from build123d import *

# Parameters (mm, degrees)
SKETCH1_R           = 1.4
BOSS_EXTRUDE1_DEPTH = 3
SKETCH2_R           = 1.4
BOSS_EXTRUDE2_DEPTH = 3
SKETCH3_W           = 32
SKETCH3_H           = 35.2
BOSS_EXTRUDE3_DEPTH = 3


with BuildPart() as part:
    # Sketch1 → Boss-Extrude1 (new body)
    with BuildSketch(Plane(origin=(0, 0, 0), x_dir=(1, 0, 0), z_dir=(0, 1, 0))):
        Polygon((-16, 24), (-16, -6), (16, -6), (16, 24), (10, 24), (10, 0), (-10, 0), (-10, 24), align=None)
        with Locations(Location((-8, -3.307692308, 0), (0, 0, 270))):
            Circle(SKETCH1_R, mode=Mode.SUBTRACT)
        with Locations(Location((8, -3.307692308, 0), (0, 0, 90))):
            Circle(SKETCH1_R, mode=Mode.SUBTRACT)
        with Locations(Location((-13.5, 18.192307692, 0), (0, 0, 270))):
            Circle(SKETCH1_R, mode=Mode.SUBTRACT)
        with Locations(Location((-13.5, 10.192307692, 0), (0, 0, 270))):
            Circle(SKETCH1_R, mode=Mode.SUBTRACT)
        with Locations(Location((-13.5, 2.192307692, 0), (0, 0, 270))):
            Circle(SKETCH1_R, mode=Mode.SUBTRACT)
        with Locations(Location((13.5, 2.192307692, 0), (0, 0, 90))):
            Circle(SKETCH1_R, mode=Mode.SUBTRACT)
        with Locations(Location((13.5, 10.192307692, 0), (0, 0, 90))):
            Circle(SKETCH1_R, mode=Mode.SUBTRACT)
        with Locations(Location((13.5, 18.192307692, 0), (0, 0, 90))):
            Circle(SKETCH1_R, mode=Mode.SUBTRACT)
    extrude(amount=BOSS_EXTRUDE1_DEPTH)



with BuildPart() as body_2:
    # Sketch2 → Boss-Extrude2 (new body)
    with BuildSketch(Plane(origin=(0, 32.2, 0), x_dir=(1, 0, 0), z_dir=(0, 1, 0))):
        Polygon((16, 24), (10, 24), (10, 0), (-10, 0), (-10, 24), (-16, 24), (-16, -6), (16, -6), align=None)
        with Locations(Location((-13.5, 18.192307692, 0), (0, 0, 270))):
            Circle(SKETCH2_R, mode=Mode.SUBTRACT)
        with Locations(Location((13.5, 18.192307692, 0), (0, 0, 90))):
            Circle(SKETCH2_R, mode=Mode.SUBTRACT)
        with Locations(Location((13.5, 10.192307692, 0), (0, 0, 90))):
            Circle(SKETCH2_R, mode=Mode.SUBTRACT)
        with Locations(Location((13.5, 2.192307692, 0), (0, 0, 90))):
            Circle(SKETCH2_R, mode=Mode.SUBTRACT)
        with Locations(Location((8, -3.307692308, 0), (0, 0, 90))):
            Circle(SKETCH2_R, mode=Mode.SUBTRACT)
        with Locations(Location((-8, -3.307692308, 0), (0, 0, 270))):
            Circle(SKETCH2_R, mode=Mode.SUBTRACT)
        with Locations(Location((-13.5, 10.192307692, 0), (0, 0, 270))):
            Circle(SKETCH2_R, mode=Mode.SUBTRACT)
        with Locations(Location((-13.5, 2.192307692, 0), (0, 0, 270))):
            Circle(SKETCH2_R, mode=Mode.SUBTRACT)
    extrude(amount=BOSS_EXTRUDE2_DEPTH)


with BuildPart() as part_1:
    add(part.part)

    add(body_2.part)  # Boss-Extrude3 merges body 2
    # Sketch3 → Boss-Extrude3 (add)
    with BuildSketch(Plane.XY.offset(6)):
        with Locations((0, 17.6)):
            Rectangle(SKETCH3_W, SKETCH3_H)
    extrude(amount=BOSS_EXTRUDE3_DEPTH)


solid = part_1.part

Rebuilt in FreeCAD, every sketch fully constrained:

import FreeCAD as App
import Part
import Sketcher
from FreeCAD import Vector

doc = App.newDocument("Part")
params = doc.addObject("Spreadsheet::Sheet", "Params")
for row, (alias, value) in enumerate([
    ("sketch1_diameter", "2.8 mm"),
    ("sketch1_width", "32 mm"),
    ("sketch1_width2", "6 mm"),
    ("sketch1_height", "30 mm"),
    ("sketch1_height2", "24 mm"),
    ("pad1_length", "3 mm"),
    ("sketch2_diameter", "2.8 mm"),
    ("sketch2_width", "6 mm"),
    ("sketch2_width2", "20 mm"),
    ("sketch2_height", "24 mm"),
    ("sketch2_height2", "30 mm"),
    ("pad2_length", "3 mm"),
    ("sketch3_width", "32 mm"),
    ("sketch3_height", "35.2 mm"),
    ("pad3_length", "3 mm"),
], start=1):
    params.set(f"A{row}", alias)
    params.set(f"B{row}", "=" + value)
    params.setAlias(f"B{row}", alias)

body = doc.addObject("PartDesign::Body", "Body")

# Sketch on XZ plane
sketch1 = body.newObject("Sketcher::SketchObject", "Sketch")
sketch1.AttachmentSupport = (doc.getObject("XZ_Plane"), [""])
sketch1.MapMode = "FlatFace"
sketch1.addGeometry(Part.LineSegment(Vector(-16, -24, 0), Vector(-16, 6, 0)), False)
sketch1.addGeometry(Part.LineSegment(Vector(-16, 6, 0), Vector(16, 6, 0)), False)
sketch1.addGeometry(Part.LineSegment(Vector(16, 6, 0), Vector(16, -24, 0)), False)
sketch1.addGeometry(Part.LineSegment(Vector(16, -24, 0), Vector(10, -24, 0)), False)
sketch1.addGeometry(Part.LineSegment(Vector(10, -24, 0), Vector(10, 0, 0)), False)
sketch1.addGeometry(Part.LineSegment(Vector(10, 0, 0), Vector(-10, 0, 0)), False)
sketch1.addGeometry(Part.LineSegment(Vector(-10, 0, 0), Vector(-10, -24, 0)), False)
sketch1.addGeometry(Part.LineSegment(Vector(-10, -24, 0), Vector(-16, -24, 0)), False)
sketch1.addGeometry(Part.Circle(Vector(-8, 3.307692, 0), Vector(0, 0, 1), 1.4), False)
sketch1.addGeometry(Part.Circle(Vector(-13.5, -2.192308, 0), Vector(0, 0, 1), 1.4), False)
sketch1.addGeometry(Part.Circle(Vector(8, 3.307692, 0), Vector(0, 0, 1), 1.4), False)
sketch1.addGeometry(Part.Circle(Vector(13.5, -2.192308, 0), Vector(0, 0, 1), 1.4), False)
sketch1.addGeometry(Part.Circle(Vector(-13.5, -10.192308, 0), Vector(0, 0, 1), 1.4), False)
sketch1.addGeometry(Part.Circle(Vector(-13.5, -18.192308, 0), Vector(0, 0, 1), 1.4), False)
sketch1.addGeometry(Part.Circle(Vector(13.5, -10.192308, 0), Vector(0, 0, 1), 1.4), False)
sketch1.addGeometry(Part.Circle(Vector(13.5, -18.192308, 0), Vector(0, 0, 1), 1.4), False)
sketch1.addConstraint(Sketcher.Constraint("Coincident", 0, 2, 1, 1))
sketch1.addConstraint(Sketcher.Constraint("Coincident", 1, 2, 2, 1))
sketch1.addConstraint(Sketcher.Constraint("Coincident", 2, 2, 3, 1))
sketch1.addConstraint(Sketcher.Constraint("Coincident", 3, 2, 4, 1))
sketch1.addConstraint(Sketcher.Constraint("Coincident", 4, 2, 5, 1))
sketch1.addConstraint(Sketcher.Constraint("Coincident", 5, 2, 6, 1))
sketch1.addConstraint(Sketcher.Constraint("Coincident", 6, 2, 7, 1))
sketch1.addConstraint(Sketcher.Constraint("Coincident", 7, 2, 0, 1))
sketch1.addConstraint(Sketcher.Constraint("Vertical", 0))
sketch1.addConstraint(Sketcher.Constraint("Horizontal", 1))
sketch1.addConstraint(Sketcher.Constraint("Vertical", 2))
sketch1.addConstraint(Sketcher.Constraint("Horizontal", 3))
sketch1.addConstraint(Sketcher.Constraint("Vertical", 4))
sketch1.addConstraint(Sketcher.Constraint("Horizontal", 5))
sketch1.addConstraint(Sketcher.Constraint("Vertical", 6))
sketch1.addConstraint(Sketcher.Constraint("Horizontal", 7))
sketch1.addConstraint(Sketcher.Constraint("Equal", 8, 9))
sketch1.addConstraint(Sketcher.Constraint("Equal", 9, 10))
sketch1.addConstraint(Sketcher.Constraint("Equal", 10, 11))
sketch1.addConstraint(Sketcher.Constraint("Equal", 11, 12))
sketch1.addConstraint(Sketcher.Constraint("Equal", 12, 13))
sketch1.addConstraint(Sketcher.Constraint("Equal", 13, 14))
sketch1.addConstraint(Sketcher.Constraint("Equal", 14, 15))
sketch1.addConstraint(Sketcher.Constraint("Symmetric", 4, 2, 5, 2, -1, 1))
sketch1.addConstraint(Sketcher.Constraint("Symmetric", 8, 3, 10, 3, -2))
sketch1.addConstraint(Sketcher.Constraint("Symmetric", 9, 3, 11, 3, -2))
sketch1.addConstraint(Sketcher.Constraint("Symmetric", 12, 3, 14, 3, -2))
sketch1.addConstraint(Sketcher.Constraint("Symmetric", 13, 3, 15, 3, -2))
sketch1.addConstraint(Sketcher.Constraint("Symmetric", 2, 2, 7, 2, -2))
sketch1.addConstraint(Sketcher.Constraint("Vertical", 9, 3, 12, 3))
sketch1.addConstraint(Sketcher.Constraint("Vertical", 12, 3, 13, 3))
sketch1.addConstraint(Sketcher.Constraint("Diameter", 8, 2.8))
sketch1.addConstraint(Sketcher.Constraint("DistanceX", 1, 1, 1, 2, 32.0))
sketch1.addConstraint(Sketcher.Constraint("DistanceX", 3, 2, 3, 1, 6.0))
sketch1.addConstraint(Sketcher.Constraint("DistanceY", 0, 1, 0, 2, 30.0))
sketch1.addConstraint(Sketcher.Constraint("DistanceY", 4, 1, 4, 2, 24.0))
sketch1.addConstraint(Sketcher.Constraint("DistanceX", 8, 3, -1, 1, 8.0))
sketch1.addConstraint(Sketcher.Constraint("DistanceX", 9, 3, 11, 3, 27.0))
sketch1.addConstraint(Sketcher.Constraint("DistanceY", 12, 3, 9, 3, 8.0))
sketch1.addConstraint(Sketcher.Constraint("DistanceY", 13, 3, 12, 3, 8.0))
sketch1.addConstraint(Sketcher.Constraint("DistanceY", 9, 3, 8, 3, 5.5))
sketch1.addConstraint(Sketcher.Constraint("DistanceY", -1, 1, 8, 3, 3.307692))
sketch1.setExpression("Constraints[31]", "Params.sketch1_diameter")
sketch1.setExpression("Constraints[32]", "Params.sketch1_width")
sketch1.setExpression("Constraints[33]", "Params.sketch1_width2")
sketch1.setExpression("Constraints[34]", "Params.sketch1_height")
sketch1.setExpression("Constraints[35]", "Params.sketch1_height2")
pad1 = body.newObject("PartDesign::Pad", "Pad")
pad1.Profile = sketch1
pad1.setExpression("Length", "Params.pad1_length")
pad1.Reversed = True
body2 = doc.addObject("PartDesign::Body", "Body001")

# Sketch on XZ plane
sketch2 = body2.newObject("Sketcher::SketchObject", "Sketch001")
sketch2.AttachmentSupport = (doc.getObject("XZ_Plane001"), [""])
sketch2.MapMode = "FlatFace"
sketch2.AttachmentOffset = App.Placement(Vector(0, 0, -32.2), App.Rotation())
sketch2.addGeometry(Part.LineSegment(Vector(16, -24, 0), Vector(10, -24, 0)), False)
sketch2.addGeometry(Part.LineSegment(Vector(10, -24, 0), Vector(10, 0, 0)), False)
sketch2.addGeometry(Part.LineSegment(Vector(10, 0, 0), Vector(-10, 0, 0)), False)
sketch2.addGeometry(Part.LineSegment(Vector(-10, 0, 0), Vector(-10, -24, 0)), False)
sketch2.addGeometry(Part.LineSegment(Vector(-10, -24, 0), Vector(-16, -24, 0)), False)
sketch2.addGeometry(Part.LineSegment(Vector(-16, -24, 0), Vector(-16, 6, 0)), False)
sketch2.addGeometry(Part.LineSegment(Vector(-16, 6, 0), Vector(16, 6, 0)), False)
sketch2.addGeometry(Part.LineSegment(Vector(16, 6, 0), Vector(16, -24, 0)), False)
sketch2.addGeometry(Part.Circle(Vector(-8, 3.307692, 0), Vector(0, 0, 1), 1.4), False)
sketch2.addGeometry(Part.Circle(Vector(-13.5, -2.192308, 0), Vector(0, 0, 1), 1.4), False)
sketch2.addGeometry(Part.Circle(Vector(8, 3.307692, 0), Vector(0, 0, 1), 1.4), False)
sketch2.addGeometry(Part.Circle(Vector(13.5, -2.192308, 0), Vector(0, 0, 1), 1.4), False)
sketch2.addGeometry(Part.Circle(Vector(-13.5, -10.192308, 0), Vector(0, 0, 1), 1.4), False)
sketch2.addGeometry(Part.Circle(Vector(-13.5, -18.192308, 0), Vector(0, 0, 1), 1.4), False)
sketch2.addGeometry(Part.Circle(Vector(13.5, -10.192308, 0), Vector(0, 0, 1), 1.4), False)
sketch2.addGeometry(Part.Circle(Vector(13.5, -18.192308, 0), Vector(0, 0, 1), 1.4), False)
sketch2.addConstraint(Sketcher.Constraint("Coincident", 0, 2, 1, 1))
sketch2.addConstraint(Sketcher.Constraint("Coincident", 1, 2, 2, 1))
sketch2.addConstraint(Sketcher.Constraint("Coincident", 2, 2, 3, 1))
sketch2.addConstraint(Sketcher.Constraint("Coincident", 3, 2, 4, 1))
sketch2.addConstraint(Sketcher.Constraint("Coincident", 4, 2, 5, 1))
sketch2.addConstraint(Sketcher.Constraint("Coincident", 5, 2, 6, 1))
sketch2.addConstraint(Sketcher.Constraint("Coincident", 6, 2, 7, 1))
sketch2.addConstraint(Sketcher.Constraint("Coincident", 7, 2, 0, 1))
sketch2.addConstraint(Sketcher.Constraint("Horizontal", 0))
sketch2.addConstraint(Sketcher.Constraint("Vertical", 1))
sketch2.addConstraint(Sketcher.Constraint("Horizontal", 2))
sketch2.addConstraint(Sketcher.Constraint("Vertical", 3))
sketch2.addConstraint(Sketcher.Constraint("Horizontal", 4))
sketch2.addConstraint(Sketcher.Constraint("Vertical", 5))
sketch2.addConstraint(Sketcher.Constraint("Horizontal", 6))
sketch2.addConstraint(Sketcher.Constraint("Vertical", 7))
sketch2.addConstraint(Sketcher.Constraint("Equal", 8, 9))
sketch2.addConstraint(Sketcher.Constraint("Equal", 9, 10))
sketch2.addConstraint(Sketcher.Constraint("Equal", 10, 11))
sketch2.addConstraint(Sketcher.Constraint("Equal", 11, 12))
sketch2.addConstraint(Sketcher.Constraint("Equal", 12, 13))
sketch2.addConstraint(Sketcher.Constraint("Equal", 13, 14))
sketch2.addConstraint(Sketcher.Constraint("Equal", 14, 15))
sketch2.addConstraint(Sketcher.Constraint("Symmetric", 1, 2, 2, 2, -1, 1))
sketch2.addConstraint(Sketcher.Constraint("Symmetric", 8, 3, 10, 3, -2))
sketch2.addConstraint(Sketcher.Constraint("Symmetric", 9, 3, 11, 3, -2))
sketch2.addConstraint(Sketcher.Constraint("Symmetric", 12, 3, 14, 3, -2))
sketch2.addConstraint(Sketcher.Constraint("Symmetric", 13, 3, 15, 3, -2))
sketch2.addConstraint(Sketcher.Constraint("Symmetric", 4, 2, 7, 2, -2))
sketch2.addConstraint(Sketcher.Constraint("Vertical", 9, 3, 12, 3))
sketch2.addConstraint(Sketcher.Constraint("Vertical", 12, 3, 13, 3))
sketch2.addConstraint(Sketcher.Constraint("Diameter", 8, 2.8))
sketch2.addConstraint(Sketcher.Constraint("DistanceX", 0, 2, 0, 1, 6.0))
sketch2.addConstraint(Sketcher.Constraint("DistanceX", 2, 2, 2, 1, 20.0))
sketch2.addConstraint(Sketcher.Constraint("DistanceY", 1, 1, 1, 2, 24.0))
sketch2.addConstraint(Sketcher.Constraint("DistanceY", 5, 1, 5, 2, 30.0))
sketch2.addConstraint(Sketcher.Constraint("DistanceX", 8, 3, -1, 1, 8.0))
sketch2.addConstraint(Sketcher.Constraint("DistanceX", 9, 3, 11, 3, 27.0))
sketch2.addConstraint(Sketcher.Constraint("DistanceY", 12, 3, 9, 3, 8.0))
sketch2.addConstraint(Sketcher.Constraint("DistanceY", 13, 3, 12, 3, 8.0))
sketch2.addConstraint(Sketcher.Constraint("DistanceY", 9, 3, 8, 3, 5.5))
sketch2.addConstraint(Sketcher.Constraint("DistanceY", -1, 1, 8, 3, 3.307692))
sketch2.setExpression("Constraints[31]", "Params.sketch2_diameter")
sketch2.setExpression("Constraints[32]", "Params.sketch2_width")
sketch2.setExpression("Constraints[33]", "Params.sketch2_width2")
sketch2.setExpression("Constraints[34]", "Params.sketch2_height")
sketch2.setExpression("Constraints[35]", "Params.sketch2_height2")
pad2 = body2.newObject("PartDesign::Pad", "Pad001")
pad2.Profile = sketch2
pad2.setExpression("Length", "Params.pad2_length")
pad2.Reversed = True
body.AllowCompound = True
doc.recompute()

boolean = body.newObject("PartDesign::Boolean", "Boolean")
boolean.Type = "Fuse"
boolean.addObjects([body2])

# Sketch on XY plane
sketch3 = body.newObject("Sketcher::SketchObject", "Sketch002")
sketch3.AttachmentSupport = (doc.getObject("XY_Plane"), [""])
sketch3.MapMode = "FlatFace"
sketch3.AttachmentOffset = App.Placement(Vector(0, 0, 6), App.Rotation())
sketch3.addGeometry(Part.LineSegment(Vector(-16, 35.2, 0), Vector(-16, 0, 0)), False)
sketch3.addGeometry(Part.LineSegment(Vector(-16, 0, 0), Vector(16, 0, 0)), False)
sketch3.addGeometry(Part.LineSegment(Vector(16, 0, 0), Vector(16, 35.2, 0)), False)
sketch3.addGeometry(Part.LineSegment(Vector(16, 35.2, 0), Vector(-16, 35.2, 0)), False)
sketch3.addConstraint(Sketcher.Constraint("Coincident", 0, 2, 1, 1))
sketch3.addConstraint(Sketcher.Constraint("Coincident", 1, 2, 2, 1))
sketch3.addConstraint(Sketcher.Constraint("Coincident", 2, 2, 3, 1))
sketch3.addConstraint(Sketcher.Constraint("Coincident", 3, 2, 0, 1))
sketch3.addConstraint(Sketcher.Constraint("Vertical", 0))
sketch3.addConstraint(Sketcher.Constraint("Horizontal", 1))
sketch3.addConstraint(Sketcher.Constraint("Vertical", 2))
sketch3.addConstraint(Sketcher.Constraint("Horizontal", 3))
sketch3.addConstraint(Sketcher.Constraint("Symmetric", 0, 2, 1, 2, -1, 1))
sketch3.addConstraint(Sketcher.Constraint("DistanceX", 1, 1, 1, 2, 32.0))
sketch3.addConstraint(Sketcher.Constraint("DistanceY", 0, 2, 0, 1, 35.2))
sketch3.setExpression("Constraints[9]", "Params.sketch3_width")
sketch3.setExpression("Constraints[10]", "Params.sketch3_height")
pad3 = body.newObject("PartDesign::Pad", "Pad002")
pad3.Profile = sketch3
pad3.setExpression("Length", "Params.pad3_length")

doc.recompute()
